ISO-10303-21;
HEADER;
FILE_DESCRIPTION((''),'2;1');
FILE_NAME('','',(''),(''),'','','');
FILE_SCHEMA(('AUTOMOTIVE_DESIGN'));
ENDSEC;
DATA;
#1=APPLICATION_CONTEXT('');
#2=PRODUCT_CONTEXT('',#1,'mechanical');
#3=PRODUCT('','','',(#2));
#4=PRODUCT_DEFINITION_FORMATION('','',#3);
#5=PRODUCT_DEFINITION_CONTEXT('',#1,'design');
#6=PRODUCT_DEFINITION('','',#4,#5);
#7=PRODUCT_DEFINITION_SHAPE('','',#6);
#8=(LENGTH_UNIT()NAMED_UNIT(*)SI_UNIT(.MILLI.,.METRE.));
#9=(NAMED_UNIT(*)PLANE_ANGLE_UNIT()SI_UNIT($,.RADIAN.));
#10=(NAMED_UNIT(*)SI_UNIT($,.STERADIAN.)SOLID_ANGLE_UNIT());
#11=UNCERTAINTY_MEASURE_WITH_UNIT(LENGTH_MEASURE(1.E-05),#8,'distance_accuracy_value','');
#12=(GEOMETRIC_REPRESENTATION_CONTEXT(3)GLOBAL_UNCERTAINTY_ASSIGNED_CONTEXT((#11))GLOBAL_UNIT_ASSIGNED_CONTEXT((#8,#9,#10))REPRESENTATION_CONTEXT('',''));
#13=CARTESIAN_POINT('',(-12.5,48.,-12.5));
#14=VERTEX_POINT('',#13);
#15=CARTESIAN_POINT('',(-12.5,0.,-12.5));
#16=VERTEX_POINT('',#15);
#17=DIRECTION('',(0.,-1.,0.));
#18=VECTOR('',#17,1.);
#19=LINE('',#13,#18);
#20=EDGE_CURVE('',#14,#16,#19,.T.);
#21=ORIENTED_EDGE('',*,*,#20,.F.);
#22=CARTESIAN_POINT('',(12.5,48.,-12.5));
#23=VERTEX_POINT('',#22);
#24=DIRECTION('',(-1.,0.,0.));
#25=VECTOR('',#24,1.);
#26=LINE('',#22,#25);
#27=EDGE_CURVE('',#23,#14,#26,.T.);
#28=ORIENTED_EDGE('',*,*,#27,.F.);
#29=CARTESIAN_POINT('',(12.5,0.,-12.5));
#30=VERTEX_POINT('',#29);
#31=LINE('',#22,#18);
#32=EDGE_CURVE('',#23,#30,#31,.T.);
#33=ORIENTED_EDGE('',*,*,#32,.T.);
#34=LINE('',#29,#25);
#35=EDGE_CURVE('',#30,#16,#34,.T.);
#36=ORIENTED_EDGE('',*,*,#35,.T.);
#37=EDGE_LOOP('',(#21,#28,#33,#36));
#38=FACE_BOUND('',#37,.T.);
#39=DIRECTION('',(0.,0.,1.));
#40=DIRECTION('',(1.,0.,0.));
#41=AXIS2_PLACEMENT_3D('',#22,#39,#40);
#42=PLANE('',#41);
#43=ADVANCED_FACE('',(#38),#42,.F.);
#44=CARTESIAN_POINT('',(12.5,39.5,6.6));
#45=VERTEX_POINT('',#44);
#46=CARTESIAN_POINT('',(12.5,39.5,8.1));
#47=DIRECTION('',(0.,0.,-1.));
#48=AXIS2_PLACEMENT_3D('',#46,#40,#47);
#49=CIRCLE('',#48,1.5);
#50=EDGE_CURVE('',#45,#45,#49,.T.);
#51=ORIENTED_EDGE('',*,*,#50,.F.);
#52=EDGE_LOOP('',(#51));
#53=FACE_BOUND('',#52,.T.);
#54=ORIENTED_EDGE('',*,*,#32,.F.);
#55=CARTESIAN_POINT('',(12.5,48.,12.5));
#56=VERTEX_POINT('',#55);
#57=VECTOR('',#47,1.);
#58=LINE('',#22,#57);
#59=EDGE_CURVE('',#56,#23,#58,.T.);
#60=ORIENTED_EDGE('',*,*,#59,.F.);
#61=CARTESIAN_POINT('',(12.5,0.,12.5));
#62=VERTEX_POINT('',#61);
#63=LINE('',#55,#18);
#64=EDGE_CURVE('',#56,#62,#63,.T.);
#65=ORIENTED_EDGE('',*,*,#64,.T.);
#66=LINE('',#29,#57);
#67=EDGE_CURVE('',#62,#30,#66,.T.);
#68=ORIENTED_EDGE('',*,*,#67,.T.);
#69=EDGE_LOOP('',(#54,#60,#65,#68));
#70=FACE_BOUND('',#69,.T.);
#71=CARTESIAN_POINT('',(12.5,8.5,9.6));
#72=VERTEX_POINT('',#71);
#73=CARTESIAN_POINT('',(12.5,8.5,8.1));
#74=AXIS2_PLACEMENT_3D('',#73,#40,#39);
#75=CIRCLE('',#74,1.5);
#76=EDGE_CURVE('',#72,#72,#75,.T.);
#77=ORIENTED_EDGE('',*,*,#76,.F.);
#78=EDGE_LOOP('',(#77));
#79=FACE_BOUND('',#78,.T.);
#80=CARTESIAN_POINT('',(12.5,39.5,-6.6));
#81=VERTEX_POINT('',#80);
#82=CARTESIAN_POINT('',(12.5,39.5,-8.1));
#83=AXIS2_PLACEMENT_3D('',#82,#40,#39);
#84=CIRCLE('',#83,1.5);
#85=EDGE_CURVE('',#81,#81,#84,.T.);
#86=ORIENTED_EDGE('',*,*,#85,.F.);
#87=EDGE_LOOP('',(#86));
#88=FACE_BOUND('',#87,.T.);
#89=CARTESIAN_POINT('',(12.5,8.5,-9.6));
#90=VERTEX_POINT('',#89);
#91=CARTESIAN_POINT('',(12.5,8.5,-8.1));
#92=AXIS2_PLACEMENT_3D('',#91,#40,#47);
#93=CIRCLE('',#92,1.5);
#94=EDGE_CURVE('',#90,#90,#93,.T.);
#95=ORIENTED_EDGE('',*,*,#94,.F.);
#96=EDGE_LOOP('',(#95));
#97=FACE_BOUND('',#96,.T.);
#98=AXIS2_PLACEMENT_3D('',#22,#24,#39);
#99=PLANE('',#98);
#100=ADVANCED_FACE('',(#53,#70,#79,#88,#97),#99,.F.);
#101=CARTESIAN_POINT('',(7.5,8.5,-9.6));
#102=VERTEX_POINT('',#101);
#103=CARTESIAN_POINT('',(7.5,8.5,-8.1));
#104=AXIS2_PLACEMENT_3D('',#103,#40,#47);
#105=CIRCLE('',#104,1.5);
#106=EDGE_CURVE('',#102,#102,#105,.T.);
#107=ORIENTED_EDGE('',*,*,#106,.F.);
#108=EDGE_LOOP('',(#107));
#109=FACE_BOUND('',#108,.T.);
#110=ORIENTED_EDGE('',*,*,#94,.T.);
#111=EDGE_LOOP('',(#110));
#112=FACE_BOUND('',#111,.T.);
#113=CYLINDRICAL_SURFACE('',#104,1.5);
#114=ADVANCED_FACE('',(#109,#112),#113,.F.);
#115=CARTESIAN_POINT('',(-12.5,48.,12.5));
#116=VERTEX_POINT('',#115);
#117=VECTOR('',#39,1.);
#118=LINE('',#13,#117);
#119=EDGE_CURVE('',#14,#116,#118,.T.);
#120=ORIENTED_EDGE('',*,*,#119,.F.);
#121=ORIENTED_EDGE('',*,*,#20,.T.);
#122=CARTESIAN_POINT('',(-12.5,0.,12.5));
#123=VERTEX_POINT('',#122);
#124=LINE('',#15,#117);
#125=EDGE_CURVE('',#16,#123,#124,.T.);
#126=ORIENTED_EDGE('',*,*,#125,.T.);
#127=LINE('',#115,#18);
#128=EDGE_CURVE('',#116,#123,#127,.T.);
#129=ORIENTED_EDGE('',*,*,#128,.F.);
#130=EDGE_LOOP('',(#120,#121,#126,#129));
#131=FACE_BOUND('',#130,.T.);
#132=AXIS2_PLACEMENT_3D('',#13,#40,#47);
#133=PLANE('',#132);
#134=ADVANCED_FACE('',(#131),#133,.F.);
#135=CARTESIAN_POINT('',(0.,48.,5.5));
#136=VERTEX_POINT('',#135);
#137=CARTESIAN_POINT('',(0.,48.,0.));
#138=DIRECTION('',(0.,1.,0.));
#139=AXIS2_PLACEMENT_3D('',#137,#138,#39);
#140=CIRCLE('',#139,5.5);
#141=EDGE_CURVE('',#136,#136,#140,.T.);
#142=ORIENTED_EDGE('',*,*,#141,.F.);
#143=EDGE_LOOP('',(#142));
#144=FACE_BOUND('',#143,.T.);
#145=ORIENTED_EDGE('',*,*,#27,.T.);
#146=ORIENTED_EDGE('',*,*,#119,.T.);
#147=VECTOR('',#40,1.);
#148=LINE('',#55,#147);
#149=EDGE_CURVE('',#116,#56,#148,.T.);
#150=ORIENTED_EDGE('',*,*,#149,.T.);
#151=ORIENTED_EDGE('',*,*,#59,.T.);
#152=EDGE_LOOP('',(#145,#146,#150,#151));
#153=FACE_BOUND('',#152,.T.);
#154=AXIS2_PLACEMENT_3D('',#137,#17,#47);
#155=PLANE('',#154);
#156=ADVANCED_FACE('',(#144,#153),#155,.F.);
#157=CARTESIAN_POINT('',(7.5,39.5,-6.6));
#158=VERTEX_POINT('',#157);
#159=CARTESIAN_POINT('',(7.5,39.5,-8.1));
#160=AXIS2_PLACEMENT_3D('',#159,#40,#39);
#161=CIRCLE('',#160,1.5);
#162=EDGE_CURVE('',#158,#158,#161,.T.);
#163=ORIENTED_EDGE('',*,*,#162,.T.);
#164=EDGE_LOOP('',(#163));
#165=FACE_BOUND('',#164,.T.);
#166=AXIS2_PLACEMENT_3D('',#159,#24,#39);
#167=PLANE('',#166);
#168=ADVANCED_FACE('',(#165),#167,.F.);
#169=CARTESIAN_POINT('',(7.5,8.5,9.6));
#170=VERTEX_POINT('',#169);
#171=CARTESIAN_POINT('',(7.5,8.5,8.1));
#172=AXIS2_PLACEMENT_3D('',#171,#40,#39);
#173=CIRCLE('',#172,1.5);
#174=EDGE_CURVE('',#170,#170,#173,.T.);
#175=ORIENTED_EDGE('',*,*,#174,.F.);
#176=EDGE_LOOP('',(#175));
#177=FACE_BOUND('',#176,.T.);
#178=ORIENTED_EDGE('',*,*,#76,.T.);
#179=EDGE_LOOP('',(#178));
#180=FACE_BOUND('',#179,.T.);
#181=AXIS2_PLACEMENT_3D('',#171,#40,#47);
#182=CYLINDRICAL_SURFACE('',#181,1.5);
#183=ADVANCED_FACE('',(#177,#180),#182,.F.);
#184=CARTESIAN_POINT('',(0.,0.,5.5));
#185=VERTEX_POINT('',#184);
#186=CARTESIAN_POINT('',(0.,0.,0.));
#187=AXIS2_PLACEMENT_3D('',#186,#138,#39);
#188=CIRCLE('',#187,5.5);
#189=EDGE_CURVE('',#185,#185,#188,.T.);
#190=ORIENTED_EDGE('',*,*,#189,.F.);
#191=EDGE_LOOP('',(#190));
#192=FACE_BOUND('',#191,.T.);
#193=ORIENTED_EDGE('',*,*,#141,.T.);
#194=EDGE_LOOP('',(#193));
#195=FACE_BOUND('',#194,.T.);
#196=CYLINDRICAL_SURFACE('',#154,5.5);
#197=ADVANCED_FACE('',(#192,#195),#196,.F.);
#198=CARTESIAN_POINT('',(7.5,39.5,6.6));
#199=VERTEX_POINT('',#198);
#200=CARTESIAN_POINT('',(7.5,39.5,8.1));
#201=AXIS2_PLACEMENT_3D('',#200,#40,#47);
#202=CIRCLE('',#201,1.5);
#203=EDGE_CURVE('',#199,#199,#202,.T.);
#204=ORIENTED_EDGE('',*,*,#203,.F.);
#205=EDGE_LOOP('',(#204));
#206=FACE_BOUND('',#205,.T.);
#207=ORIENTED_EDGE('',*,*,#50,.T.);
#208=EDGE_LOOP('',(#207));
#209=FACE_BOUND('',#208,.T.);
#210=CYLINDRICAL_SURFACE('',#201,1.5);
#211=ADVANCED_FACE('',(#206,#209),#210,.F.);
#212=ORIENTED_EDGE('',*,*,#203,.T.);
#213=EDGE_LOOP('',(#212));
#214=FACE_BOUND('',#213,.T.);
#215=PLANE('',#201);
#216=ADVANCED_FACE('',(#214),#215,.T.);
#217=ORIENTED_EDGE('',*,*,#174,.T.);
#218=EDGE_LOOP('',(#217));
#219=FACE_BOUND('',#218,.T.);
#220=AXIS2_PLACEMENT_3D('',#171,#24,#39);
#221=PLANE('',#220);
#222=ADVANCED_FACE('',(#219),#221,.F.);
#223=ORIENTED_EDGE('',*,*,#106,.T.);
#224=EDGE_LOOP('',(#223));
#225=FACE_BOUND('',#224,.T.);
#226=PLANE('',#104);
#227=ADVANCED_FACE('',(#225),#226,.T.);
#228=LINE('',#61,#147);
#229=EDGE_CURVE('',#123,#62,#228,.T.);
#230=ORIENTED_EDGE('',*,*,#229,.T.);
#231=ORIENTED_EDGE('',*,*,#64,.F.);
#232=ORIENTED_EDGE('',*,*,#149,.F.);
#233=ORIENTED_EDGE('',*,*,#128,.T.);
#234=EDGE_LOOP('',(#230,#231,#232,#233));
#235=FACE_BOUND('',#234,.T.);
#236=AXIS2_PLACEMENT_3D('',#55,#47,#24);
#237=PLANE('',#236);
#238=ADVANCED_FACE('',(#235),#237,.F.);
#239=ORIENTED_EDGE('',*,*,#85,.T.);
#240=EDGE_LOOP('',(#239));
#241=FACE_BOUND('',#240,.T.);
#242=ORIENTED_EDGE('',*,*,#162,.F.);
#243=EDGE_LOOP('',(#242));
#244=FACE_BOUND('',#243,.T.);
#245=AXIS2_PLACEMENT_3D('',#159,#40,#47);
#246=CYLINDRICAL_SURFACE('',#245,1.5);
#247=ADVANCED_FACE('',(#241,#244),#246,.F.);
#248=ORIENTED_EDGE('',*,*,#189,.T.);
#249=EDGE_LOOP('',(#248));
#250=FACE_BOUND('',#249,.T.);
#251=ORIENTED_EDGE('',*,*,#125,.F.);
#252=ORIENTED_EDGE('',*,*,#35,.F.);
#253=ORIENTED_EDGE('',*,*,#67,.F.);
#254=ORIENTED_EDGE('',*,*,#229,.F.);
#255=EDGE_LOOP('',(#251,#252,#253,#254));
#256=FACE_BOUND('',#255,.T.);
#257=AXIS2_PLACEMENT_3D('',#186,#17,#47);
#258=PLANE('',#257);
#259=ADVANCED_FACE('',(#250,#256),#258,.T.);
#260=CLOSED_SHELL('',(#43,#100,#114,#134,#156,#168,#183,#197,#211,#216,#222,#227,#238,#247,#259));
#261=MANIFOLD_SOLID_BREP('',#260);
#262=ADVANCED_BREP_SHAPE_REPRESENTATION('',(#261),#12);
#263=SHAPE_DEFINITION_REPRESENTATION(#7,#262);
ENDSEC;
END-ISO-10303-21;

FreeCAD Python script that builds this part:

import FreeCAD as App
import Part
import Sketcher
Q = App.Units.Quantity


def add_polygon(sketch, points):
    """Adds a closed chain of lines whose ends are joined by coincident constraints."""
    first, n = sketch.GeometryCount, len(points)
    for a, b in zip(points, points[1:] + points[:1]):
        sketch.addGeometry(Part.LineSegment(App.Vector(*a, 0), App.Vector(*b, 0)), False)
    for i in range(n):
        sketch.addConstraint(Sketcher.Constraint("Coincident", first + i, 2, first + (i + 1) % n, 1))

doc = App.newDocument("Part")
body = doc.addObject("PartDesign::Body", "Body")

sketch1 = body.newObject("Sketcher::SketchObject", "Sketch")
sketch1.AttachmentSupport = (doc.getObject("XZ_Plane"), [""])
sketch1.MapMode = "FlatFace"
add_polygon(sketch1, [(-12, -12), (-12, 12), (12, 12), (12, -12)])
sketch1.addGeometry(Part.Circle(App.Vector(0, 0, 0), App.Vector(0, 0, 1), 6), False)
sketch1.addConstraint([
    Sketcher.Constraint("Vertical", 0),
    Sketcher.Constraint("Horizontal", 1),
    Sketcher.Constraint("Vertical", 2),
    Sketcher.Constraint("Horizontal", 3),
    Sketcher.Constraint("Coincident", 4, 3, -1, 1),
    Sketcher.Constraint("Symmetric", 0, 2, 2, 2, -1, 1),
    Sketcher.Constraint("Equal", 3, 0),
    Sketcher.Constraint("Diameter", 4, Q("11 mm")),
    Sketcher.Constraint("DistanceX", 1, 1, 1, 2, Q("25 mm")),
])
pad1 = body.newObject("PartDesign::Pad", "Pad")
pad1.Profile = sketch1
pad1.Length = 48
pad1.Reversed = True

sketch2 = body.newObject("Sketcher::SketchObject", "Sketch001")
sketch2.AttachmentSupport = (doc.getObject("YZ_Plane"), [""])
sketch2.MapMode = "FlatFace"
sketch2.AttachmentOffset = App.Placement(App.Vector(0, 0, 12.5), App.Rotation())
sketch2.addGeometry([
    Part.Circle(App.Vector(8.5, -8.1, 0), App.Vector(0, 0, 1), 1.5),
    Part.Circle(App.Vector(8.5, 8.1, 0), App.Vector(0, 0, 1), 1.5),
    Part.Circle(App.Vector(39.5, 8.1, 0), App.Vector(0, 0, 1), 1.5),
    Part.Circle(App.Vector(39.5, -8.1, 0), App.Vector(0, 0, 1), 1.5),
], False)
sketch2.addConstraint([
    Sketcher.Constraint("Equal", 0, 1),
    Sketcher.Constraint("Equal", 1, 2),
    Sketcher.Constraint("Equal", 2, 3),
    Sketcher.Constraint("Symmetric", 0, 3, 1, 3, -1),
    Sketcher.Constraint("Symmetric", 2, 3, 3, 3, -1),
    Sketcher.Constraint("Horizontal", 1, 3, 2, 3),
    Sketcher.Constraint("Diameter", 0, Q("3 mm")),
    Sketcher.Constraint("DistanceX", 1, 3, 2, 3, Q("31 mm")),
    Sketcher.Constraint("DistanceX", -1, 1, 0, 3, Q("8.5 mm")),
    Sketcher.Constraint("DistanceY", 0, 3, -1, 1, Q("8.1 mm")),
])
pocket1 = body.newObject("PartDesign::Pocket", "Pocket")
pocket1.Profile = sketch2
pocket1.Length = 5

doc.recompute()
